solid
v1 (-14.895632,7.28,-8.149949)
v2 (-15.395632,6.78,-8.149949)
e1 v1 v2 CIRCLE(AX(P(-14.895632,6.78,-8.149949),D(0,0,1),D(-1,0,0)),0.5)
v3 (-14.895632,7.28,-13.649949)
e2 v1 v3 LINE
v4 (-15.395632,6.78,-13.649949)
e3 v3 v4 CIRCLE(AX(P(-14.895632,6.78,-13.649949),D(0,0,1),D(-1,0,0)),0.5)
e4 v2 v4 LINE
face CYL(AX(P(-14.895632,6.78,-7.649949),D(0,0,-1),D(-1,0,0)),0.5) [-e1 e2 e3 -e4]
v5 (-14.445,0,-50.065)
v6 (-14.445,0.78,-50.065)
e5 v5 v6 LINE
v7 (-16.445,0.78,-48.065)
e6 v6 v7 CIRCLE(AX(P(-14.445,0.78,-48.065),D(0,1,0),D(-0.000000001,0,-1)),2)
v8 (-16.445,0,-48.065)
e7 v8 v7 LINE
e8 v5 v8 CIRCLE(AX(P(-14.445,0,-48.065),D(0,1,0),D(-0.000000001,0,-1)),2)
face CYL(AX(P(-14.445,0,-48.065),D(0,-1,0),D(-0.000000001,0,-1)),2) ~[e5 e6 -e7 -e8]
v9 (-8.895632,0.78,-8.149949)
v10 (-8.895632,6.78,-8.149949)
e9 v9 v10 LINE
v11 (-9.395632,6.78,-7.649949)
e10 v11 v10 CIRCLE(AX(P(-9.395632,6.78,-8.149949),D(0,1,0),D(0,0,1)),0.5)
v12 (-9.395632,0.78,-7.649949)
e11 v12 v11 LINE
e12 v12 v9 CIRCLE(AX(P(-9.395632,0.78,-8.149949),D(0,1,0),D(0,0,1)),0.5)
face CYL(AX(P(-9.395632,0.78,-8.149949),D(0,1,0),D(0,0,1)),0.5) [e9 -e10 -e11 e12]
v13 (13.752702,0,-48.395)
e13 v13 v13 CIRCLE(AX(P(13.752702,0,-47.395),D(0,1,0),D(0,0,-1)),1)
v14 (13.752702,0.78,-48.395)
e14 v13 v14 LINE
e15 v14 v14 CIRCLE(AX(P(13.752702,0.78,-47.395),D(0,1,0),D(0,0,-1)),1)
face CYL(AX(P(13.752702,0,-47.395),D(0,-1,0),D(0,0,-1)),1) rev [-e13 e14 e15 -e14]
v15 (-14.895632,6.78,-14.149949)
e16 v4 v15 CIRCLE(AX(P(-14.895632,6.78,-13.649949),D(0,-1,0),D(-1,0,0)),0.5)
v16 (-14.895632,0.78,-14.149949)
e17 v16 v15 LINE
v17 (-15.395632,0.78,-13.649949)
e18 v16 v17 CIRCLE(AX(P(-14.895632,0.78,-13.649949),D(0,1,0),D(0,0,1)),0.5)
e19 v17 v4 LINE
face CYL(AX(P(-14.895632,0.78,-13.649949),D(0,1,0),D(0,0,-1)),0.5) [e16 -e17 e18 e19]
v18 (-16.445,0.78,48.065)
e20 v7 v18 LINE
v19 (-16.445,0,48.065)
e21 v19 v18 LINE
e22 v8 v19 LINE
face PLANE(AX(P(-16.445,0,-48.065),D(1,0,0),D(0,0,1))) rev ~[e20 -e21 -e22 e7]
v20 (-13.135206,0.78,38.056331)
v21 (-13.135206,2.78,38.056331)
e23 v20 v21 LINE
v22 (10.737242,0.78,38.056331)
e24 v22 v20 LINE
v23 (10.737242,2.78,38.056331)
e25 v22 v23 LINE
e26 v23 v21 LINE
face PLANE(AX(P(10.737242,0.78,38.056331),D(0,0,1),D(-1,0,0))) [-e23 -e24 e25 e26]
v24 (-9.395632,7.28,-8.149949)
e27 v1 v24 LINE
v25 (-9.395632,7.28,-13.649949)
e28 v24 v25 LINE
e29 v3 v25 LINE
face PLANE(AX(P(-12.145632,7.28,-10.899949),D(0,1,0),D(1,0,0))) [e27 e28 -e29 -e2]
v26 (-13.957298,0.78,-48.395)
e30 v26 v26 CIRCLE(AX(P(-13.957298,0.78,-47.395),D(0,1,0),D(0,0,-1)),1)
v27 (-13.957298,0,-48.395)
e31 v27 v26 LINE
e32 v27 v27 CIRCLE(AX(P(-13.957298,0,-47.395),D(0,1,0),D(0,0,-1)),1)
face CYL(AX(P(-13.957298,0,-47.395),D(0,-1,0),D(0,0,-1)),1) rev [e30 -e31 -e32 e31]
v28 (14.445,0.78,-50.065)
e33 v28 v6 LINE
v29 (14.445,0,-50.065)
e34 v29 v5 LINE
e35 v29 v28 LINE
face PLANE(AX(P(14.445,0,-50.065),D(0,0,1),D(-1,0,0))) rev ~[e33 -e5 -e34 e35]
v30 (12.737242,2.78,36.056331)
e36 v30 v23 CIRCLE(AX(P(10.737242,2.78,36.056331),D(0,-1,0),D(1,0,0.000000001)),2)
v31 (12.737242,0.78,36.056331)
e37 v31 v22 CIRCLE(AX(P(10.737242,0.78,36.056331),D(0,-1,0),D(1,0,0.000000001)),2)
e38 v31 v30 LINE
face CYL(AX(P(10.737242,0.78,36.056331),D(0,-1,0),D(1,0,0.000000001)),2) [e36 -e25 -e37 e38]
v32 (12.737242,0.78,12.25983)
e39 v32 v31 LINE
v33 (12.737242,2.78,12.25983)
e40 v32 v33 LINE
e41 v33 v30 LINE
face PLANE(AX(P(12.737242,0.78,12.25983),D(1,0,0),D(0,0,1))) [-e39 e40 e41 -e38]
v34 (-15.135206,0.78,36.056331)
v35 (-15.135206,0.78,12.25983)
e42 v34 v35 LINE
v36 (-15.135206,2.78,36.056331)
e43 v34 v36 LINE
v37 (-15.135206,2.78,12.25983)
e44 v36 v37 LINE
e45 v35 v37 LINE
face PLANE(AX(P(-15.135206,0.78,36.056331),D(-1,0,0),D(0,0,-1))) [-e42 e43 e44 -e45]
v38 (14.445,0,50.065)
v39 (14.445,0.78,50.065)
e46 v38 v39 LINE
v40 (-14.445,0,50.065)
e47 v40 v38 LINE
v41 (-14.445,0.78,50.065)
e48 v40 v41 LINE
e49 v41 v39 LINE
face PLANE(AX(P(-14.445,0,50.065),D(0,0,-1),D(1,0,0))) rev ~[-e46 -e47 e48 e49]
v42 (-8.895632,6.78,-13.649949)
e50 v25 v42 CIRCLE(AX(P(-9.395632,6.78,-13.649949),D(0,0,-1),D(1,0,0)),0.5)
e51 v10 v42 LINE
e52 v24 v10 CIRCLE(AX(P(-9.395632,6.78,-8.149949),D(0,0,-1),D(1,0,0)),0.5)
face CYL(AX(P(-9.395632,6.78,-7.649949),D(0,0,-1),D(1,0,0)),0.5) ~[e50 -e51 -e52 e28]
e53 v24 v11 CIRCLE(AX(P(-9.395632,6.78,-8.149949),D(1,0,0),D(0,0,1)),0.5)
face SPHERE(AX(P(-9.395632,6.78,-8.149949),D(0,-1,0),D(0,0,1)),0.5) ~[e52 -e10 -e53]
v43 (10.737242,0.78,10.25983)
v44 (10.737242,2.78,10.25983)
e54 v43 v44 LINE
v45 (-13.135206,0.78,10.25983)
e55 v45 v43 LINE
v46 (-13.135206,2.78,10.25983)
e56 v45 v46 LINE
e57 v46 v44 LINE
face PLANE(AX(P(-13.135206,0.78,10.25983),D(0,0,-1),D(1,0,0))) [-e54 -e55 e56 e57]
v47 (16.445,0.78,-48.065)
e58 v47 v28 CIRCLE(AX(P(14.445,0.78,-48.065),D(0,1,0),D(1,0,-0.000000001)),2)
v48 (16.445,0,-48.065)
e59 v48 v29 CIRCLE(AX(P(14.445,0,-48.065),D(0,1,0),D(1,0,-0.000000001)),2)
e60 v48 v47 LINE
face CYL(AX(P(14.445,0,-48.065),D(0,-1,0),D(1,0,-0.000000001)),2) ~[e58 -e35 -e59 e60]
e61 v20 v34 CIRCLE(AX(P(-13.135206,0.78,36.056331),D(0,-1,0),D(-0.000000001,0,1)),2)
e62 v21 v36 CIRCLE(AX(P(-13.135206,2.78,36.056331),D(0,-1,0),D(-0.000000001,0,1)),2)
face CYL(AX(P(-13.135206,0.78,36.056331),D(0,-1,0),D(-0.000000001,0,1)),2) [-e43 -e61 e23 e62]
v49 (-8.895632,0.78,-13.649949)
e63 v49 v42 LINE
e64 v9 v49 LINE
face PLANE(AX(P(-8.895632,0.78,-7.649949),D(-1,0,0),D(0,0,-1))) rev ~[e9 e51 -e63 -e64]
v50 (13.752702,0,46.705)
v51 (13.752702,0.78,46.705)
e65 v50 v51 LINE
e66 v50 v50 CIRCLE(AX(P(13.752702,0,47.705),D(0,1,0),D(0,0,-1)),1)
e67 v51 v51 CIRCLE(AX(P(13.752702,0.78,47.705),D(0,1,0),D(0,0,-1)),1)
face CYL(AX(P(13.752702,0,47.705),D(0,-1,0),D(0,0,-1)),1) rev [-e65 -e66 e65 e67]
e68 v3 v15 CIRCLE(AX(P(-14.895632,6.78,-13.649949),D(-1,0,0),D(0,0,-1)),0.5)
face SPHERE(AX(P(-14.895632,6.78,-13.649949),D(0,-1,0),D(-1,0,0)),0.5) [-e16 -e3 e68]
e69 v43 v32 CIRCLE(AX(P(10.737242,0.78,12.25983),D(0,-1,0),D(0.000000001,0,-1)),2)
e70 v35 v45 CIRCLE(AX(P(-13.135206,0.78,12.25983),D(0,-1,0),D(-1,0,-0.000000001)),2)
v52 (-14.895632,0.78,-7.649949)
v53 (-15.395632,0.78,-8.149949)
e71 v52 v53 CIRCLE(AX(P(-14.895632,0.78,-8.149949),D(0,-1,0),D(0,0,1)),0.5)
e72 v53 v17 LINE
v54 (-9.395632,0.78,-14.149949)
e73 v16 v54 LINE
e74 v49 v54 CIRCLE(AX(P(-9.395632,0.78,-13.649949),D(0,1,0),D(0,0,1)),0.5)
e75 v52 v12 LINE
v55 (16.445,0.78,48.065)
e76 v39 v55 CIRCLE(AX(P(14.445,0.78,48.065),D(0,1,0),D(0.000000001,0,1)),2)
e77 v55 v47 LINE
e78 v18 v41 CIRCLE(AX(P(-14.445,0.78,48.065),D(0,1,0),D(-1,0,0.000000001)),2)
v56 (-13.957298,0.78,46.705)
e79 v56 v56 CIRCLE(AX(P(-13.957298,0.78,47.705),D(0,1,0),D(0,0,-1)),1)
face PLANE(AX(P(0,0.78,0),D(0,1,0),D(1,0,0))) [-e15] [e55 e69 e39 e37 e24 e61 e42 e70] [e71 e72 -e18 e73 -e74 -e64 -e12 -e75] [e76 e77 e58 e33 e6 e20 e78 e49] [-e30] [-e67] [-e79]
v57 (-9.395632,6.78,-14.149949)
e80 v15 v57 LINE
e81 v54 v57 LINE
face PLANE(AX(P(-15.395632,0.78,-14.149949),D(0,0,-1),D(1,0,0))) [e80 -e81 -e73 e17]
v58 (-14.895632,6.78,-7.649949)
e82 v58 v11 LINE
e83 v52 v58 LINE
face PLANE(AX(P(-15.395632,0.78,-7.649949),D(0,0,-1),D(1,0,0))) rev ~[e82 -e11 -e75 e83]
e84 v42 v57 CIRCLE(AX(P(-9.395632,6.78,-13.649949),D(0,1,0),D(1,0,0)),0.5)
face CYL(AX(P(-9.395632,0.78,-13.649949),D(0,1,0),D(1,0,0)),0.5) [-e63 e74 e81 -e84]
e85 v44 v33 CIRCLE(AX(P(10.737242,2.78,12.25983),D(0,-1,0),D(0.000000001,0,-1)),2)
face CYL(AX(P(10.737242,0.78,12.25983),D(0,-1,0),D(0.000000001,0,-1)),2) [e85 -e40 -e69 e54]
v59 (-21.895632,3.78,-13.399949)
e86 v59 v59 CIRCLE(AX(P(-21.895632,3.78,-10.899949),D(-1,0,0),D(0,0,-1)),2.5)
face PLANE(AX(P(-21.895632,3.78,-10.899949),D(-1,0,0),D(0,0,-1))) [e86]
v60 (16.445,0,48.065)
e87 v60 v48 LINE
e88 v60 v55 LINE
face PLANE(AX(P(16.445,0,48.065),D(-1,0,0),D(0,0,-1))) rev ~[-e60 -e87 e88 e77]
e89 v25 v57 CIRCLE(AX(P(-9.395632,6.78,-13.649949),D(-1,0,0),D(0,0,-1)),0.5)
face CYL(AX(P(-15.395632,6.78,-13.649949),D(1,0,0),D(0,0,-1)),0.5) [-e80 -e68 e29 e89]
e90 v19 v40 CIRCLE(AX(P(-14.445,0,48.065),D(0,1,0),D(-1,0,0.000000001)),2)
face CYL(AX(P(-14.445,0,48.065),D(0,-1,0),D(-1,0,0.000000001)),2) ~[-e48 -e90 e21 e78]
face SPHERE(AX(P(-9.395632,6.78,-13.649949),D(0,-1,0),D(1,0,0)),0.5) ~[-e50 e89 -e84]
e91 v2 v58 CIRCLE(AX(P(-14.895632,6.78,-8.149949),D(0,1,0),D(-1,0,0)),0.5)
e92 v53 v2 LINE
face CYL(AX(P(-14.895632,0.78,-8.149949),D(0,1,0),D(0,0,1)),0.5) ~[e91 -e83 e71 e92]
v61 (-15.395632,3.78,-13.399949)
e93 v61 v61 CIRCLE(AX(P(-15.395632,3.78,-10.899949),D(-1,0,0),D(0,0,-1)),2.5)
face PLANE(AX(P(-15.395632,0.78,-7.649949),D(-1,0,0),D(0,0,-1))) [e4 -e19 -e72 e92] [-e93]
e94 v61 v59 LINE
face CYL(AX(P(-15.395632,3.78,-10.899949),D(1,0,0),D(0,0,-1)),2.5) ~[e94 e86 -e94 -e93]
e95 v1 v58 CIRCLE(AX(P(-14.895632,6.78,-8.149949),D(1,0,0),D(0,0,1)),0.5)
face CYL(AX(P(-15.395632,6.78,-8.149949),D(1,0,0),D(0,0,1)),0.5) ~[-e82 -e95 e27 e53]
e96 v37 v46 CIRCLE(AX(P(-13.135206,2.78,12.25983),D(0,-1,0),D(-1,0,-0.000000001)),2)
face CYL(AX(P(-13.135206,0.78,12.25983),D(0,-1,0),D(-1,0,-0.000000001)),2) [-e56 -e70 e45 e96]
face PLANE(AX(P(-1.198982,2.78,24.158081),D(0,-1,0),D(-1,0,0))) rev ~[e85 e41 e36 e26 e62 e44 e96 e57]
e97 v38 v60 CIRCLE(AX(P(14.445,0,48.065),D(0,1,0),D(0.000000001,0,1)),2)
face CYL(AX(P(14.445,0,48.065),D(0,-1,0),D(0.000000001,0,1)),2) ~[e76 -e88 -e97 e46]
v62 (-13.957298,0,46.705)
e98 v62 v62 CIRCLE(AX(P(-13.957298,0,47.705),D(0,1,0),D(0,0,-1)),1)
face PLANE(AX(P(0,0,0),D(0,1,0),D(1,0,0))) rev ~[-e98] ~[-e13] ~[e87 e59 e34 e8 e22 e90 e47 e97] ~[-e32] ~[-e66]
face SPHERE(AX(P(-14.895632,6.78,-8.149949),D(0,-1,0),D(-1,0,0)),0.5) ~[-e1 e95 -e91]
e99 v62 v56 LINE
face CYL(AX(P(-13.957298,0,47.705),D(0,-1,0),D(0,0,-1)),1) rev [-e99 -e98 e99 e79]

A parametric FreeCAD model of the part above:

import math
import FreeCAD as App
import Part
import Sketcher
from FreeCAD import Vector
Q = App.Units.Quantity


def edges_at(feature, points):
    """Names of the edges that pass closest to the given points."""
    edges = feature.Shape.Edges
    near = lambda p: min(range(len(edges)), key=lambda i: edges[i].distToShape(Part.Vertex(*p))[0])
    return sorted({f"Edge{near(p) + 1}" for p in points})


def add_polygon(sketch, points):
    """Adds a closed chain of lines whose ends are joined by coincident constraints."""
    first, n = sketch.GeometryCount, len(points)
    for a, b in zip(points, points[1:] + points[:1]):
        sketch.addGeometry(Part.LineSegment(App.Vector(*a, 0), App.Vector(*b, 0)), False)
    for i in range(n):
        sketch.addConstraint(Sketcher.Constraint("Coincident", first + i, 2, first + (i + 1) % n, 1))

doc = App.newDocument("Part")
body = doc.addObject("PartDesign::Body", "Body")

# Sketch on XZ plane
sketch1 = doc.addObject("Sketcher::SketchObject", "Sketch")
body.addObject(sketch1)
sketch1.AttachmentSupport = (doc.XZ_Plane, [""])
sketch1.MapMode = "FlatFace"
sketch1.addGeometry([
    Part.LineSegment(Vector(-14.445, 50.065, 0), Vector(14.445, 50.065, 0)),  # 0
    Part.ArcOfCircle(Part.Circle(Vector(14.445, 48.065, 0), Vector(0, 0, 1), 2), math.radians(0), math.radians(90)),  # 1
    Part.LineSegment(Vector(16.445, 48.065, 0), Vector(16.445, -48.065, 0)),  # 2
    Part.ArcOfCircle(Part.Circle(Vector(14.445, -48.065, 0), Vector(0, 0, 1), 2), math.radians(-90), math.radians(0)),  # 3
    Part.LineSegment(Vector(14.445, -50.065, 0), Vector(-14.445, -50.065, 0)),  # 4
    Part.ArcOfCircle(Part.Circle(Vector(-14.445, -48.065, 0), Vector(0, 0, 1), 2), math.radians(-180), math.radians(-90)),  # 5
    Part.LineSegment(Vector(-16.445, -48.065, 0), Vector(-16.445, 48.065, 0)),  # 6
    Part.ArcOfCircle(Part.Circle(Vector(-14.445, 48.065, 0), Vector(0, 0, 1), 2), math.radians(90), math.radians(180)),  # 7
    Part.Circle(Vector(-13.957298, 47.705, 0), Vector(0, 0, 1), 1),  # 8
    Part.Circle(Vector(13.752702, 47.705, 0), Vector(0, 0, 1), 1),  # 9
    Part.Circle(Vector(-13.957298, -47.395, 0), Vector(0, 0, 1), 1),  # 10
    Part.Circle(Vector(13.752702, -47.395, 0), Vector(0, 0, 1), 1),  # 11
], False)
sketch1.addConstraint([
    Sketcher.Constraint("Tangent", 0, 2, 1, 2),
    Sketcher.Constraint("Tangent", 1, 1, 2, 1),
    Sketcher.Constraint("Tangent", 2, 2, 3, 2),
    Sketcher.Constraint("Tangent", 3, 1, 4, 1),
    Sketcher.Constraint("Tangent", 4, 2, 5, 2),
    Sketcher.Constraint("Tangent", 5, 1, 6, 1),
    Sketcher.Constraint("Tangent", 6, 2, 7, 2),
    Sketcher.Constraint("Tangent", 7, 1, 0, 1),
    Sketcher.Constraint("Horizontal", 0),
    Sketcher.Constraint("Vertical", 2),
    Sketcher.Constraint("Horizontal", 4),
    Sketcher.Constraint("Vertical", 6),
    Sketcher.Constraint("Equal", 1, 3),
    Sketcher.Constraint("Equal", 3, 5),
    Sketcher.Constraint("Equal", 5, 7),
    Sketcher.Constraint("Equal", 8, 9),
    Sketcher.Constraint("Equal", 9, 10),
    Sketcher.Constraint("Equal", 10, 11),
    Sketcher.Constraint("Symmetric", 1, 3, 5, 3, -1, 1),
    Sketcher.Constraint("Horizontal", 8, 3, 9, 3),
    Sketcher.Constraint("Horizontal", 10, 3, 11, 3),
    Sketcher.Constraint("Vertical", 8, 3, 10, 3),
    Sketcher.Constraint("Vertical", 9, 3, 11, 3),
    Sketcher.Constraint("Diameter", 8, Q("2 mm")),
    Sketcher.Constraint("Radius", 1, Q("2 mm")),
    Sketcher.Constraint("DistanceX", 0, 1, 0, 2, Q("28.89 mm")),
    Sketcher.Constraint("DistanceY", 2, 2, 2, 1, Q("96.13 mm")),
    Sketcher.Constraint("DistanceY", 10, 3, 8, 3, Q("95.1 mm")),
    Sketcher.Constraint("DistanceY", 8, 3, 7, 3, Q("0.36 mm")),
    Sketcher.Constraint("DistanceX", 8, 3, 9, 3, Q("27.71 mm")),
    Sketcher.Constraint("DistanceX", 8, 3, -1, 1, Q("13.957298 mm")),
])
pad1 = doc.addObject("PartDesign::Pad", "Pad")
body.addObject(pad1)
pad1.Profile = sketch1
pad1.Length = 0.78
pad1.Reversed = True

# Sketch on XZ plane
sketch2 = doc.addObject("Sketcher::SketchObject", "Sketch001")
body.addObject(sketch2)
sketch2.AttachmentSupport = (doc.XZ_Plane, [""])
sketch2.MapMode = "FlatFace"
sketch2.AttachmentOffset = App.Placement(Vector(0, 0, -0.78), App.Rotation())
add_polygon(sketch2, [(-15.395632, -14.149949), (-15.395632, -7.649949), (-8.895632, -7.649949), (-8.895632, -14.149949)])  # lines 0-3
sketch2.addConstraint([
    Sketcher.Constraint("Vertical", 0),
    Sketcher.Constraint("Horizontal", 1),
    Sketcher.Constraint("Vertical", 2),
    Sketcher.Constraint("Horizontal", 3),
    Sketcher.Constraint("Equal", 3, 0),
    Sketcher.Constraint("DistanceX", 1, 1, 1, 2, Q("6.5 mm")),
    Sketcher.Constraint("DistanceX", 0, 2, -1, 1, Q("15.395632 mm")),
    Sketcher.Constraint("DistanceY", 0, 2, -1, 1, Q("7.649949 mm")),
])
pad2 = doc.addObject("PartDesign::Pad", "Pad001")
body.addObject(pad2)
pad2.Profile = sketch2
pad2.Length = 6.5
pad2.Reversed = True
doc.recompute()

fillet = doc.addObject("PartDesign::Fillet", "Fillet")
body.addObject(fillet)
fillet.Base = (pad2, edges_at(pad2, [
    (-15.396, 4.03, -14.15),
    (-15.396, 4.03, -7.65),
    (-8.896, 4.03, -7.65),
    (-8.896, 4.03, -14.15),
    (-15.396, 7.28, -10.9),
    (-12.146, 7.28, -7.65),
    (-8.896, 7.28, -10.9),
    (-12.146, 7.28, -14.15),
]))
fillet.Radius = 0.5

# Sketch on YZ plane
sketch3 = doc.addObject("Sketcher::SketchObject", "Sketch002")
body.addObject(sketch3)
sketch3.AttachmentSupport = (doc.YZ_Plane, [""])
sketch3.MapMode = "FlatFace"
sketch3.AttachmentOffset = App.Placement(Vector(0, 0, -15.395632), App.Rotation())
sketch3.addGeometry(Part.Circle(Vector(3.78, -10.899949, 0), Vector(0, 0, 1), 2.5), False)
sketch3.addConstraint([
    Sketcher.Constraint("Diameter", 0, Q("5 mm")),
    Sketcher.Constraint("DistanceX", -1, 1, 0, 3, Q("3.78 mm")),
    Sketcher.Constraint("DistanceY", 0, 3, -1, 1, Q("10.899949 mm")),
])
pad3 = doc.addObject("PartDesign::Pad", "Pad002")
body.addObject(pad3)
pad3.Profile = sketch3
pad3.Length = 6.5
pad3.Reversed = True

# Sketch on XZ plane
sketch4 = doc.addObject("Sketcher::SketchObject", "Sketch003")
body.addObject(sketch4)
sketch4.AttachmentSupport = (doc.XZ_Plane, [""])
sketch4.MapMode = "FlatFace"
sketch4.AttachmentOffset = App.Placement(Vector(0, 0, -0.78), App.Rotation())
sketch4.addGeometry([
    Part.LineSegment(Vector(10.737242, 10.25983, 0), Vector(-13.135206, 10.25983, 0)),  # 0
    Part.ArcOfCircle(Part.Circle(Vector(-13.135206, 12.25983, 0), Vector(0, 0, 1), 2), math.radians(-180), math.radians(-90)),  # 1
    Part.LineSegment(Vector(-15.135206, 12.25983, 0), Vector(-15.135206, 36.056331, 0)),  # 2
    Part.ArcOfCircle(Part.Circle(Vector(-13.135206, 36.056331, 0), Vector(0, 0, 1), 2), math.radians(90), math.radians(180)),  # 3
    Part.LineSegment(Vector(-13.135206, 38.056331, 0), Vector(10.737242, 38.056331, 0)),  # 4
    Part.ArcOfCircle(Part.Circle(Vector(10.737242, 36.056331, 0), Vector(0, 0, 1), 2), math.radians(0), math.radians(90)),  # 5
    Part.LineSegment(Vector(12.737242, 36.056331, 0), Vector(12.737242, 12.25983, 0)),  # 6
    Part.ArcOfCircle(Part.Circle(Vector(10.737242, 12.25983, 0), Vector(0, 0, 1), 2), math.radians(-90), math.radians(0)),  # 7
], False)
sketch4.addConstraint([
    Sketcher.Constraint("Tangent", 0, 2, 1, 2),
    Sketcher.Constraint("Tangent", 1, 1, 2, 1),
    Sketcher.Constraint("Tangent", 2, 2, 3, 2),
    Sketcher.Constraint("Tangent", 3, 1, 4, 1),
    Sketcher.Constraint("Tangent", 4, 2, 5, 2),
    Sketcher.Constraint("Tangent", 5, 1, 6, 1),
    Sketcher.Constraint("Tangent", 6, 2, 7, 2),
    Sketcher.Constraint("Tangent", 7, 1, 0, 1),
    Sketcher.Constraint("Horizontal", 0),
    Sketcher.Constraint("Vertical", 2),
    Sketcher.Constraint("Horizontal", 4),
    Sketcher.Constraint("Vertical", 6),
    Sketcher.Constraint("Equal", 1, 3),
    Sketcher.Constraint("Equal", 3, 5),
    Sketcher.Constraint("Equal", 5, 7),
    Sketcher.Constraint("Radius", 1, Q("2 mm")),
    Sketcher.Constraint("DistanceY", 2, 1, 2, 2, Q("23.796502 mm")),
    Sketcher.Constraint("DistanceX", 0, 2, 0, 1, Q("23.872448 mm")),
    Sketcher.Constraint("DistanceY", -1, 1, 1, 3, Q("12.25983 mm")),
    Sketcher.Constraint("DistanceX", 1, 3, -1, 1, Q("13.135206 mm")),
])
pad4 = doc.addObject("PartDesign::Pad", "Pad003")
body.addObject(pad4)
pad4.Profile = sketch4
pad4.Length = 2
pad4.Reversed = True

doc.recompute()
